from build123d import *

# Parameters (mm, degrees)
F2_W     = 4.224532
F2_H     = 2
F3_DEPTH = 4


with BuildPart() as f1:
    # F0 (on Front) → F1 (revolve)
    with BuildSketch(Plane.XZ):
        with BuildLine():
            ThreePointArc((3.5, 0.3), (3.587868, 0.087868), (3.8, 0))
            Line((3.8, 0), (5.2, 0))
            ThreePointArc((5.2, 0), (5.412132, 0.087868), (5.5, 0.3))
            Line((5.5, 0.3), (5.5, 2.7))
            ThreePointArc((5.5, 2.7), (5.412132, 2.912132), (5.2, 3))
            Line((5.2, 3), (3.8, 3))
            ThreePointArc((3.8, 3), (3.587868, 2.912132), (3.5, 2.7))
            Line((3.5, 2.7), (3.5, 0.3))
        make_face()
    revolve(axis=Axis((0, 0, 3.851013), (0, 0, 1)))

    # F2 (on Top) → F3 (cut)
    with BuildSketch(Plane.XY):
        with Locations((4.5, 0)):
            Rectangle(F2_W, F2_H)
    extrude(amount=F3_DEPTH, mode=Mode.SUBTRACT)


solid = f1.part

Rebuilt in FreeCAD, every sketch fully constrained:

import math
import FreeCAD as App
import Part
import Sketcher


def add_polygon(sketch, points):
    """Adds a closed chain of lines whose ends are joined by coincident constraints."""
    first, n = sketch.GeometryCount, len(points)
    for a, b in zip(points, points[1:] + points[:1]):
        sketch.addGeometry(Part.LineSegment(App.Vector(*a, 0), App.Vector(*b, 0)), False)
    for i in range(n):
        sketch.addConstraint(Sketcher.Constraint("Coincident", first + i, 2, first + (i + 1) % n, 1))

doc = App.newDocument("Part")
body = doc.addObject("PartDesign::Body", "Body")

sketch1 = doc.addObject("Sketcher::SketchObject", "Sketch")
body.addObject(sketch1)
sketch1.AttachmentSupport = (doc.XZ_Plane, [""])
sketch1.MapMode = "FlatFace"
sketch1.addGeometry([
    Part.ArcOfCircle(Part.Circle(App.Vector(3.8, 0.3, 0), App.Vector(0, 0, 1), 0.3), math.radians(-180), math.radians(-90)),
    Part.LineSegment(App.Vector(3.8, 0, 0), App.Vector(5.2, 0, 0)),
    Part.ArcOfCircle(Part.Circle(App.Vector(5.2, 0.3, 0), App.Vector(0, 0, 1), 0.3), math.radians(-90), math.radians(0)),
    Part.LineSegment(App.Vector(5.5, 0.3, 0), App.Vector(5.5, 2.7, 0)),
    Part.ArcOfCircle(Part.Circle(App.Vector(5.2, 2.7, 0), App.Vector(0, 0, 1), 0.3), math.radians(0), math.radians(90)),
    Part.LineSegment(App.Vector(5.2, 3, 0), App.Vector(3.8, 3, 0)),
    Part.ArcOfCircle(Part.Circle(App.Vector(3.8, 2.7, 0), App.Vector(0, 0, 1), 0.3), math.radians(90), math.radians(180)),
    Part.LineSegment(App.Vector(3.5, 2.7, 0), App.Vector(3.5, 0.3, 0)),
], False)
sketch1.addConstraint([
    Sketcher.Constraint("Tangent", 0, 2, 1, 1),
    Sketcher.Constraint("Tangent", 1, 2, 2, 1),
    Sketcher.Constraint("Tangent", 2, 2, 3, 1),
    Sketcher.Constraint("Tangent", 3, 2, 4, 1),
    Sketcher.Constraint("Tangent", 4, 2, 5, 1),
    Sketcher.Constraint("Tangent", 5, 2, 6, 1),
    Sketcher.Constraint("Tangent", 6, 2, 7, 1),
    Sketcher.Constraint("Tangent", 7, 2, 0, 1),
    Sketcher.Constraint("Horizontal", 1),
    Sketcher.Constraint("Vertical", 3),
    Sketcher.Constraint("Horizontal", 5),
    Sketcher.Constraint("Vertical", 7),
    Sketcher.Constraint("Equal", 0, 2),
    Sketcher.Constraint("Equal", 2, 4),
    Sketcher.Constraint("Equal", 4, 6),
    Sketcher.Constraint("PointOnObject", 0, 2, -1),
    Sketcher.Constraint("Radius", 0, 0.3),
    Sketcher.Constraint("DistanceX", 1, 1, 1, 2, 1.4),
    Sketcher.Constraint("DistanceY", 3, 1, 3, 2, 2.4),
    Sketcher.Constraint("DistanceX", -1, 1, 0, 3, 3.8),
])
revolution = doc.addObject("PartDesign::Revolution", "Revolution")
body.addObject(revolution)
revolution.Profile = sketch1
revolution.ReferenceAxis = (sketch1, ["V_Axis"])
revolution.Angle = 360

sketch2 = doc.addObject("Sketcher::SketchObject", "Sketch001")
body.addObject(sketch2)
sketch2.AttachmentSupport = (doc.XY_Plane, [""])
sketch2.MapMode = "FlatFace"
add_polygon(sketch2, [(2.4, 1), (2.4, -1), (6.6, -1), (6.6, 1)])
sketch2.addConstraint([
    Sketcher.Constraint("Vertical", 0),
    Sketcher.Constraint("Horizontal", 1),
    Sketcher.Constraint("Vertical", 2),
    Sketcher.Constraint("Horizontal", 3),
    Sketcher.Constraint("DistanceY", 0, 2, 0, 1, 2.0),
    Sketcher.Constraint("DistanceY", 0, 2, -1, 1, 1.0),
    Sketcher.Constraint("DistanceX", 1, 1, 1, 2, 4.224532),
    Sketcher.Constraint("DistanceX", -1, 1, 0, 2, 2.387734),
])
pocket1 = doc.addObject("PartDesign::Pocket", "Pocket")
body.addObject(pocket1)
pocket1.Profile = sketch2
pocket1.Length = 4
pocket1.Reversed = True

doc.recompute()
